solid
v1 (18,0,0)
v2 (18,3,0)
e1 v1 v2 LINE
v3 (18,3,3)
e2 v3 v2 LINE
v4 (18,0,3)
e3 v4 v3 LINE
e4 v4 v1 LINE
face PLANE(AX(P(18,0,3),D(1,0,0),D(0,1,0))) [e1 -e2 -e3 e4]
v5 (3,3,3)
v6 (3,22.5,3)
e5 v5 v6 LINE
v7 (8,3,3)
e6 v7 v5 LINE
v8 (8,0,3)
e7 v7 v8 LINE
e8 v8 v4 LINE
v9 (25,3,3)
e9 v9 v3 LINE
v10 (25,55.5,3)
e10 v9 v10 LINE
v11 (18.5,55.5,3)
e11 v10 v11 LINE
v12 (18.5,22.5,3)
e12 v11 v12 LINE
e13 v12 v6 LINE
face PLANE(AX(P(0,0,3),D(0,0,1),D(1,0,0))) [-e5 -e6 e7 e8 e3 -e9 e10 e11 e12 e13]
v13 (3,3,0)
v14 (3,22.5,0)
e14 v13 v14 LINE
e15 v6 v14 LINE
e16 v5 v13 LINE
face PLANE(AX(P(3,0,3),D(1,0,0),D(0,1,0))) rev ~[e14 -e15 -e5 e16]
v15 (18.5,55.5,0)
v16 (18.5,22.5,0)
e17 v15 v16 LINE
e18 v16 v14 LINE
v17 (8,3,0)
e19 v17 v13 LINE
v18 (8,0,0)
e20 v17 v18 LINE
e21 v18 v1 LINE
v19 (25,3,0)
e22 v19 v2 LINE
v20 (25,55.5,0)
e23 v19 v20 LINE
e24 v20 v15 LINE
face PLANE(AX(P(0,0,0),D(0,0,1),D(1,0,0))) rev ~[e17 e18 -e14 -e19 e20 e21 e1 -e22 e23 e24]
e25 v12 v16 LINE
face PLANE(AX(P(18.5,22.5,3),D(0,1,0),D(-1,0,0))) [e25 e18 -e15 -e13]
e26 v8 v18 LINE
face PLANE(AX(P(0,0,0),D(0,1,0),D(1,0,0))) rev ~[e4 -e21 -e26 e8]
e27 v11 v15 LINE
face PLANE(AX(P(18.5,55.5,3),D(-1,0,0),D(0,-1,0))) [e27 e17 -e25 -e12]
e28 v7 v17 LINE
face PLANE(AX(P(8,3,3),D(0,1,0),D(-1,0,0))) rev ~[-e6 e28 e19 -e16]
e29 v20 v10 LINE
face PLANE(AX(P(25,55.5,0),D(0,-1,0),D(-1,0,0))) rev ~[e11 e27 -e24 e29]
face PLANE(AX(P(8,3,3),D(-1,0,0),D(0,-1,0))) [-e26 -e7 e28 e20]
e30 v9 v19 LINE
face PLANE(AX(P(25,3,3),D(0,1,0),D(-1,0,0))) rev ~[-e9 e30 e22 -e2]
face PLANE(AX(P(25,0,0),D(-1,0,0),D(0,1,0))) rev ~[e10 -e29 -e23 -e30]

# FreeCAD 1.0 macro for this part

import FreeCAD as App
import Part
import Sketcher


def add_polygon(sketch, points):
    """Adds a closed chain of lines whose ends are joined by coincident constraints."""
    first, n = sketch.GeometryCount, len(points)
    for a, b in zip(points, points[1:] + points[:1]):
        sketch.addGeometry(Part.LineSegment(App.Vector(*a, 0), App.Vector(*b, 0)), False)
    for i in range(n):
        sketch.addConstraint(Sketcher.Constraint("Coincident", first + i, 2, first + (i + 1) % n, 1))

doc = App.newDocument("Part")
body = doc.addObject("PartDesign::Body", "Body")

sketch1 = doc.addObject("Sketcher::SketchObject", "Sketch")
body.addObject(sketch1)
sketch1.AttachmentSupport = (doc.XY_Plane, [""])
sketch1.MapMode = "FlatFace"
add_polygon(sketch1, [(0, 56), (0, 0), (25, 0), (25, 56)])
sketch1.addConstraint(Sketcher.Constraint("Vertical", 0))
sketch1.addConstraint(Sketcher.Constraint("Horizontal", 1))
sketch1.addConstraint(Sketcher.Constraint("Vertical", 2))
sketch1.addConstraint(Sketcher.Constraint("Horizontal", 3))
sketch1.addConstraint(Sketcher.Constraint("Coincident", 0, 2, -1, 1))
sketch1.addConstraint(Sketcher.Constraint("DistanceX", 1, 1, 1, 2, 25.0))
sketch1.addConstraint(Sketcher.Constraint("DistanceY", 0, 2, 0, 1, 55.5))
pad1 = doc.addObject("PartDesign::Pad", "Pad")
body.addObject(pad1)
pad1.Profile = sketch1
pad1.Length = 3

sketch2 = doc.addObject("Sketcher::SketchObject", "Sketch001")
body.addObject(sketch2)
sketch2.AttachmentSupport = (doc.XY_Plane, [""])
sketch2.MapMode = "FlatFace"
sketch2.AttachmentOffset = App.Placement(App.Vector(0, 0, 3), App.Rotation())
add_polygon(sketch2, [(3, 55.5), (0, 55.5), (0, 0), (3, 0)])
sketch2.addConstraint(Sketcher.Constraint("Horizontal", 0))
sketch2.addConstraint(Sketcher.Constraint("Vertical", 1))
sketch2.addConstraint(Sketcher.Constraint("Horizontal", 2))
sketch2.addConstraint(Sketcher.Constraint("Vertical", 3))
sketch2.addConstraint(Sketcher.Constraint("Coincident", 1, 2, -1, 1))
sketch2.addConstraint(Sketcher.Constraint("DistanceX", 0, 2, 0, 1, 3.0))
sketch2.addConstraint(Sketcher.Constraint("DistanceY", 1, 2, 1, 1, 55.5))
pocket1 = doc.addObject("PartDesign::Pocket", "Pocket")
body.addObject(pocket1)
pocket1.Profile = sketch2
pocket1.Type = "ThroughAll"

sketch3 = doc.addObject("Sketcher::SketchObject", "Sketch002")
body.addObject(sketch3)
sketch3.AttachmentSupport = (doc.XY_Plane, [""])
sketch3.MapMode = "FlatFace"
sketch3.AttachmentOffset = App.Placement(App.Vector(0, 0, 3), App.Rotation())
add_polygon(sketch3, [(18, 22), (18, 56), (3, 56), (3, 22)])
sketch3.addConstraint(Sketcher.Constraint("Vertical", 0))
sketch3.addConstraint(Sketcher.Constraint("Horizontal", 1))
sketch3.addConstraint(Sketcher.Constraint("Vertical", 2))
sketch3.addConstraint(Sketcher.Constraint("Horizontal", 3))
sketch3.addConstraint(Sketcher.Constraint("DistanceY", 0, 1, 0, 2, 33.0))
sketch3.addConstraint(Sketcher.Constraint("DistanceX", 1, 2, 1, 1, 15.5))
sketch3.addConstraint(Sketcher.Constraint("DistanceX", -1, 1, 1, 2, 3.0))
sketch3.addConstraint(Sketcher.Constraint("DistanceY", -1, 1, 0, 2, 55.5))
pocket2 = doc.addObject("PartDesign::Pocket", "Pocket001")
body.addObject(pocket2)
pocket2.Profile = sketch3
pocket2.Type = "ThroughAll"

sketch4 = doc.addObject("Sketcher::SketchObject", "Sketch003")
body.addObject(sketch4)
sketch4.AttachmentSupport = (doc.XY_Plane, [""])
sketch4.MapMode = "FlatFace"
sketch4.AttachmentOffset = App.Placement(App.Vector(0, 0, 3), App.Rotation())
add_polygon(sketch4, [(3, 3), (3, 0), (8, 0), (8, 3)])
add_polygon(sketch4, [(18, 3), (18, 0), (25, 0), (25, 3)])
sketch4.addConstraint(Sketcher.Constraint("Vertical", 0))
sketch4.addConstraint(Sketcher.Constraint("Horizontal", 1))
sketch4.addConstraint(Sketcher.Constraint("Vertical", 2))
sketch4.addConstraint(Sketcher.Constraint("Horizontal", 3))
sketch4.addConstraint(Sketcher.Constraint("Vertical", 4))
sketch4.addConstraint(Sketcher.Constraint("Horizontal", 5))
sketch4.addConstraint(Sketcher.Constraint("Vertical", 6))
sketch4.addConstraint(Sketcher.Constraint("Horizontal", 7))
sketch4.addConstraint(Sketcher.Constraint("PointOnObject", 0, 2, -1))
sketch4.addConstraint(Sketcher.Constraint("PointOnObject", 4, 2, -1))
sketch4.addConstraint(Sketcher.Constraint("Horizontal", 3, 2, 6, 2))
sketch4.addConstraint(Sketcher.Constraint("DistanceX", 1, 1, 1, 2, 5.0))
sketch4.addConstraint(Sketcher.Constraint("DistanceY", 0, 2, 0, 1, 3.0))
sketch4.addConstraint(Sketcher.Constraint("DistanceX", -1, 1, 0, 2, 3.0))
sketch4.addConstraint(Sketcher.Constraint("DistanceX", 1, 2, 4, 2, 10.0))
sketch4.addConstraint(Sketcher.Constraint("DistanceX", 5, 1, 5, 2, 7.0))
pocket3 = doc.addObject("PartDesign::Pocket", "Pocket002")
body.addObject(pocket3)
pocket3.Profile = sketch4
pocket3.Type = "ThroughAll"

doc.recompute()
